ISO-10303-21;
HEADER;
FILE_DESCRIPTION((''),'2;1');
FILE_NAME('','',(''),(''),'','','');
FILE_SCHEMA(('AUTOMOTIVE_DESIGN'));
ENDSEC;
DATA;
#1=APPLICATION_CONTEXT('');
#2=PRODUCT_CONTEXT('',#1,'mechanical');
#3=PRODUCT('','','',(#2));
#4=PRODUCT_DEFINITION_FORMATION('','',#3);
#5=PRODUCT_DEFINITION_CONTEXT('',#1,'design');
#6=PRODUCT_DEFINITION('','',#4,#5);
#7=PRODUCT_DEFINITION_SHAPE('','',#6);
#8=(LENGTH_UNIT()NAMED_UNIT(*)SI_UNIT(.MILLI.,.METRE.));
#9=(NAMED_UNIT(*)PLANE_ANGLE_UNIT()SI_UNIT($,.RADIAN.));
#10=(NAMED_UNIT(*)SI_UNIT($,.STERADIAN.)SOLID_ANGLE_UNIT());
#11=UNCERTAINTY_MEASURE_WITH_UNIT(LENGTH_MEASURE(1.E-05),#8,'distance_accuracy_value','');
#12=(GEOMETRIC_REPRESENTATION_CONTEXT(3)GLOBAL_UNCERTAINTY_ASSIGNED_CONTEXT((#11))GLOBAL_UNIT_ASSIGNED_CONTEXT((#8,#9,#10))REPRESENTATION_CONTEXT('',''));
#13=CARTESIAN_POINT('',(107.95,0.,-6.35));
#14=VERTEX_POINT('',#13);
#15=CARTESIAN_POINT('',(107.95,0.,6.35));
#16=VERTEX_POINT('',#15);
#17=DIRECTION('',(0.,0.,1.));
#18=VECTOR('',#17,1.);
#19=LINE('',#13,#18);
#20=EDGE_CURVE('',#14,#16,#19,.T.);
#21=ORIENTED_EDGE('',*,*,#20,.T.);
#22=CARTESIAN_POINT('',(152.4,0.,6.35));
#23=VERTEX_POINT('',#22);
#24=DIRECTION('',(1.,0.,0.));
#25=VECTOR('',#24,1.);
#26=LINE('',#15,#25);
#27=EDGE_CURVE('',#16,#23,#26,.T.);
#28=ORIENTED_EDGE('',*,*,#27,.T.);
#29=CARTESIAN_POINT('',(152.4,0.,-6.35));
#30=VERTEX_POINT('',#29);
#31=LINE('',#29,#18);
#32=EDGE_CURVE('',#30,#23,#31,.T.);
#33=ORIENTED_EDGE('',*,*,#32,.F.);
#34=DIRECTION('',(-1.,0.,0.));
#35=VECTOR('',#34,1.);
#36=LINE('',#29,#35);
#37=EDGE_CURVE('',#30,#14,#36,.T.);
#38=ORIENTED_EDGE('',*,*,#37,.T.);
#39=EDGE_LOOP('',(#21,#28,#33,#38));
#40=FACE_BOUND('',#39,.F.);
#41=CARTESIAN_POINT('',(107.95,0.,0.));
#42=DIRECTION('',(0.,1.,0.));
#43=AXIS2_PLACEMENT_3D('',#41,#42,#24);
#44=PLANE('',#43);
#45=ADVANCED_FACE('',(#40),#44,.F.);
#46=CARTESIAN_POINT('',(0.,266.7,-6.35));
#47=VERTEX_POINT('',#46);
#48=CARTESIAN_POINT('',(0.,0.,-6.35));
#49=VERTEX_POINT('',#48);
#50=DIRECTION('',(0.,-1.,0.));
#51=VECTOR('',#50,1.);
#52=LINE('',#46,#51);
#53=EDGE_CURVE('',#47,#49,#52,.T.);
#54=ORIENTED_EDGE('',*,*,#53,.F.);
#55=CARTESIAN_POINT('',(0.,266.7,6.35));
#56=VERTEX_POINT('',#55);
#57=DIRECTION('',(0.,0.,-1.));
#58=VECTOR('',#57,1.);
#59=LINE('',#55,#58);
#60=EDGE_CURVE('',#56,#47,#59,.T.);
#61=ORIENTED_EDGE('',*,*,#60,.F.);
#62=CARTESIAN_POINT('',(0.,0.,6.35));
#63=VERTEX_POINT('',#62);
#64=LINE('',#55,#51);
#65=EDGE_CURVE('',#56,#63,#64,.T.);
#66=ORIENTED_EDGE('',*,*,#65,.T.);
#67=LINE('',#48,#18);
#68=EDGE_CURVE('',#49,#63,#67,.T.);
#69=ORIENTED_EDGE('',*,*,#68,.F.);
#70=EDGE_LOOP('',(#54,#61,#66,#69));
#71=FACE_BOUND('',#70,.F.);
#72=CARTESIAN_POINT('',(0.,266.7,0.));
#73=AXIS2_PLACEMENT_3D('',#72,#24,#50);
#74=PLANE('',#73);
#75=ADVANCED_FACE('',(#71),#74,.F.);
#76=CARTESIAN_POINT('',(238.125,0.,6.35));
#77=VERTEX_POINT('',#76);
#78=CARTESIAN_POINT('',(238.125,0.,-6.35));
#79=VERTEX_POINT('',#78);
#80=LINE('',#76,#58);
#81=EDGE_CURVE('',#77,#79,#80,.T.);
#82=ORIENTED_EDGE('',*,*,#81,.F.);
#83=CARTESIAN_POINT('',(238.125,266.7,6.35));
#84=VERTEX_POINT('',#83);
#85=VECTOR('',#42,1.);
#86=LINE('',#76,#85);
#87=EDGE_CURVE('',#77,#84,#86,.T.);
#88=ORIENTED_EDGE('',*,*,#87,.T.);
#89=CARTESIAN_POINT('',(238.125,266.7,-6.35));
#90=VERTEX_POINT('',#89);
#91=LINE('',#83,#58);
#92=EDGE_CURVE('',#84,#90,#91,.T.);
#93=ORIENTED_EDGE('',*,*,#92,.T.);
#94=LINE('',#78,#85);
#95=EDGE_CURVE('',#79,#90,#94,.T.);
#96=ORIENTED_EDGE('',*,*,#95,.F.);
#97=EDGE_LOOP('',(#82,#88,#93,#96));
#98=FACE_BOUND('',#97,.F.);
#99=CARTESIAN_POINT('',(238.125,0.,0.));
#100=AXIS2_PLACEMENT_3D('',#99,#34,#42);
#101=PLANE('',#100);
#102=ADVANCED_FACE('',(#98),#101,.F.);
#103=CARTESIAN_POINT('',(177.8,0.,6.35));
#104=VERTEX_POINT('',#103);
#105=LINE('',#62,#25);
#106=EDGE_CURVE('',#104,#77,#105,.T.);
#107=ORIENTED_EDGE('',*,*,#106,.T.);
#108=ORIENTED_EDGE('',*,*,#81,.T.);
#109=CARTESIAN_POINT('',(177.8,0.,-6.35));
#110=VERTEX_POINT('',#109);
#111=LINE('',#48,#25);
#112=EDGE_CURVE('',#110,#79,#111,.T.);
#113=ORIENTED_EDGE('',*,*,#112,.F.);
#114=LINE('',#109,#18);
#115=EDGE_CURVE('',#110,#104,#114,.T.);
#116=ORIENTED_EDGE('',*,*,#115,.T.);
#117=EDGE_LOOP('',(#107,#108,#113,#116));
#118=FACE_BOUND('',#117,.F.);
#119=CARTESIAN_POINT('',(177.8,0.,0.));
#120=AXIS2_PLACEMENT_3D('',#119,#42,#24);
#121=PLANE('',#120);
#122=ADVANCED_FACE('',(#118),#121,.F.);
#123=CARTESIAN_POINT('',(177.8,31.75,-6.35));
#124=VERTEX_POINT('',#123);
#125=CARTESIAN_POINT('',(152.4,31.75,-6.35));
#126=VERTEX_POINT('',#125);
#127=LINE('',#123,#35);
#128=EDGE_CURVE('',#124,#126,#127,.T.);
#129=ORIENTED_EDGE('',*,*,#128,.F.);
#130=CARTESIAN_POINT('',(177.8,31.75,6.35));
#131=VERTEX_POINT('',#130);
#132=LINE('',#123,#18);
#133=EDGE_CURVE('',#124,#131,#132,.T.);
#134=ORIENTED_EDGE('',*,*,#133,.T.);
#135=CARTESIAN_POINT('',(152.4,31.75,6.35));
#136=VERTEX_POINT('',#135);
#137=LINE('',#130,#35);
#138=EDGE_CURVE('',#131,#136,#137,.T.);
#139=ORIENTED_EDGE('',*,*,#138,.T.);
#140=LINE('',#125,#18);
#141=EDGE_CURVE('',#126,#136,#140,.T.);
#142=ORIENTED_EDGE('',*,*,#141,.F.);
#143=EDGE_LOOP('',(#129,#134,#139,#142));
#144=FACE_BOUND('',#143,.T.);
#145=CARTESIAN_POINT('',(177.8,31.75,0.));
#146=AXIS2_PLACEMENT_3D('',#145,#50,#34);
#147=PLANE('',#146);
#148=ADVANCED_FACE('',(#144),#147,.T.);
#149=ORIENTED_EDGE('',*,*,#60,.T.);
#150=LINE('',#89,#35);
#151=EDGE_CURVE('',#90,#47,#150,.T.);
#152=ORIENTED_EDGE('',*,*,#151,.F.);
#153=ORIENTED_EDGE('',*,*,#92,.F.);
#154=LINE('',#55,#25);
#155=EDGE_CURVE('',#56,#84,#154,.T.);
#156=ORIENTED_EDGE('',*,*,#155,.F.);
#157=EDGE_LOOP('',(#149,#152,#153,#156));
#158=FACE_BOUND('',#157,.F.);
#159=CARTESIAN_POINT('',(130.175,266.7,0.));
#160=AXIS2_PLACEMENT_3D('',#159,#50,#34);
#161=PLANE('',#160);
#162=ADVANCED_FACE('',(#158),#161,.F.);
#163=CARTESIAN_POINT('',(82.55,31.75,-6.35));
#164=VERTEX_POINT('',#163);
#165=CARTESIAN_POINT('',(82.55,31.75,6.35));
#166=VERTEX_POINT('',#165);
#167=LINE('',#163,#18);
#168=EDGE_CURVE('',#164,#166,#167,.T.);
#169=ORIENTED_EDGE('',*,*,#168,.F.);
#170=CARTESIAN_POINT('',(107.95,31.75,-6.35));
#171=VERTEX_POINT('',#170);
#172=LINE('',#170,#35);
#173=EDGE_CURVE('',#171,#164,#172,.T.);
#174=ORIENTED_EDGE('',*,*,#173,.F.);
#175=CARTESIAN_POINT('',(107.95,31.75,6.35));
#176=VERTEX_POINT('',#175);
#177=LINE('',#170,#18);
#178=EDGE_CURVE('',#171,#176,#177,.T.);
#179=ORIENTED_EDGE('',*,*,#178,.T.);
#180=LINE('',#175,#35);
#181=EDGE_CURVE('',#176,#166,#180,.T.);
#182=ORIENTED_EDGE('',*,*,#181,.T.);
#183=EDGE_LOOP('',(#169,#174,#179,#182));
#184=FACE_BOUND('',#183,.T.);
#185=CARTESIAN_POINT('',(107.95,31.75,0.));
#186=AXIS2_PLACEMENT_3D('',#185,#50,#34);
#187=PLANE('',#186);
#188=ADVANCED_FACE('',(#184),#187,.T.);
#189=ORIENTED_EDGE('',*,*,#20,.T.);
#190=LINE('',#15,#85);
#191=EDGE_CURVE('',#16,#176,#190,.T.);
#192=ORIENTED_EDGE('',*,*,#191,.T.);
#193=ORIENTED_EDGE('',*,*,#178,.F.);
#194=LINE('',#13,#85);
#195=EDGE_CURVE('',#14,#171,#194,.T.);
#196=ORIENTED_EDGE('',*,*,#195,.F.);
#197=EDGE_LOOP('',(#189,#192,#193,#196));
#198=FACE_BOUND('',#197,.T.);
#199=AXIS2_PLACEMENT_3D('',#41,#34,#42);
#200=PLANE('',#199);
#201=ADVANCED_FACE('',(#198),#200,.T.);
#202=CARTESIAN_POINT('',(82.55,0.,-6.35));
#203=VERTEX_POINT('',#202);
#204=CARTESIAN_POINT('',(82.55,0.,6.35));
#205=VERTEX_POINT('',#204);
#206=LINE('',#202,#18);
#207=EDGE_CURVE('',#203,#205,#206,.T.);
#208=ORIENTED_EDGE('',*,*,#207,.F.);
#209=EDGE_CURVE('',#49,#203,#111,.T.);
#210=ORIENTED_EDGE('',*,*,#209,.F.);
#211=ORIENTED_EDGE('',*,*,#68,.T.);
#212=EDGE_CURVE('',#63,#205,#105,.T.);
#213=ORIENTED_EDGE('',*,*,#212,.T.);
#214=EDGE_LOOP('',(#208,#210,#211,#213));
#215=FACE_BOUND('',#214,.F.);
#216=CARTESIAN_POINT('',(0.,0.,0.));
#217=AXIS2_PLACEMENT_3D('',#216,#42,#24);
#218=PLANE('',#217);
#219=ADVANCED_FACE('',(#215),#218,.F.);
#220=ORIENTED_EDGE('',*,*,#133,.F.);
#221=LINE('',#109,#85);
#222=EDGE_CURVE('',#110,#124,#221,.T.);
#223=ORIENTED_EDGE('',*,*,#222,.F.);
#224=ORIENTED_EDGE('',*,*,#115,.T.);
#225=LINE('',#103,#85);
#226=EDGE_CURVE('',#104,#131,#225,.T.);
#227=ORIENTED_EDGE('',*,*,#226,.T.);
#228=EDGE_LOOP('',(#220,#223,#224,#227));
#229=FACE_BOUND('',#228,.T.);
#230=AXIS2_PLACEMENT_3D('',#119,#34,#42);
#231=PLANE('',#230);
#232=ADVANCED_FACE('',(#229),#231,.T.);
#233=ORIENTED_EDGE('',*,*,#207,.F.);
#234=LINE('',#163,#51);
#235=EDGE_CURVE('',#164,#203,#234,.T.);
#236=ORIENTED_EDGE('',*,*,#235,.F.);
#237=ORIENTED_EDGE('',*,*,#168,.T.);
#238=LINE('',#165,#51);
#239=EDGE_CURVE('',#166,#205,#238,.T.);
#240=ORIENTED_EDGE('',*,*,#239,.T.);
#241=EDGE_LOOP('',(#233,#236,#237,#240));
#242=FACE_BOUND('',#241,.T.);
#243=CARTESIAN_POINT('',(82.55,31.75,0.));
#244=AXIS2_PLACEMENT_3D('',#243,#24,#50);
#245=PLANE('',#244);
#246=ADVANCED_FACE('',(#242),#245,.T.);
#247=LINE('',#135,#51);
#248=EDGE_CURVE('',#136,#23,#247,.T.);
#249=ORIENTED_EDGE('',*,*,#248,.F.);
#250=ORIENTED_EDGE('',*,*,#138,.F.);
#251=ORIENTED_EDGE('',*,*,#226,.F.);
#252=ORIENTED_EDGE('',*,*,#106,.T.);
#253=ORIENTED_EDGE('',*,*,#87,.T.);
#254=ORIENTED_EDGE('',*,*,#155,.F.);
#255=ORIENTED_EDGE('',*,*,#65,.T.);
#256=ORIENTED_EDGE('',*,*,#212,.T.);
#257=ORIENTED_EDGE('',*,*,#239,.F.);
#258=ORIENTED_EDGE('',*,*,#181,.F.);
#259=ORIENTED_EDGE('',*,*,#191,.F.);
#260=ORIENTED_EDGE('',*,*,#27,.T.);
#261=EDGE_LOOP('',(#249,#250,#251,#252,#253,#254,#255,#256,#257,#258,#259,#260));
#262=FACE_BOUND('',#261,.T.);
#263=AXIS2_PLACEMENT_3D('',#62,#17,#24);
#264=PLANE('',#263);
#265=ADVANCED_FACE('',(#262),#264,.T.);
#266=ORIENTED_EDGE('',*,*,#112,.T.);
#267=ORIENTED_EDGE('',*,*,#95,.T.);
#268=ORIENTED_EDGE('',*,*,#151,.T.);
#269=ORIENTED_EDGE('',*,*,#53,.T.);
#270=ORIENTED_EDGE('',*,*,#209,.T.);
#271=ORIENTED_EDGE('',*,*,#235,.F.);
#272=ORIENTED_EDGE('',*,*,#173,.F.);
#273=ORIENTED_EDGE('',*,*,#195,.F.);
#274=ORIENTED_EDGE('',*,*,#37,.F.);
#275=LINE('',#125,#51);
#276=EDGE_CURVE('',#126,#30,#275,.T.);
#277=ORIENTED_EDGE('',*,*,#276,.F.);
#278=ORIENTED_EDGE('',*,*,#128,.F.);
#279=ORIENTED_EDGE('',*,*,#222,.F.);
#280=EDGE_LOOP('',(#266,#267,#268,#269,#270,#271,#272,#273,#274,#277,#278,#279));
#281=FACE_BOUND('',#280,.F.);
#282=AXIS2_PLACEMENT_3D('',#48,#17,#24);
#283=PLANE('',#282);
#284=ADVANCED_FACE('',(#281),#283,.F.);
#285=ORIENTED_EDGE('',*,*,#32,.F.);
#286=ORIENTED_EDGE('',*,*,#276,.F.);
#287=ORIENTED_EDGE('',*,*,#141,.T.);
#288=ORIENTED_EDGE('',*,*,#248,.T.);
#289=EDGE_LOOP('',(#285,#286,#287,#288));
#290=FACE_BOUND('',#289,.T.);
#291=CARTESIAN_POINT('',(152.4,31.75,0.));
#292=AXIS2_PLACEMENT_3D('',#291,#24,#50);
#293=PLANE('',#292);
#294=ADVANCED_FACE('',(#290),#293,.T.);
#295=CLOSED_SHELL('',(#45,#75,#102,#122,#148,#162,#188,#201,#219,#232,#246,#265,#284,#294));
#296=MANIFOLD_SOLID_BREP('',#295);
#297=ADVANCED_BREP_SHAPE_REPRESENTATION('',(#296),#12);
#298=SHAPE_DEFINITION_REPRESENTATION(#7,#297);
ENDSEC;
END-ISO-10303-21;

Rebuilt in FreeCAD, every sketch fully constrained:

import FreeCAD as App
import Part
import Sketcher

V = App.Vector
Q = App.Units.Quantity


def add_polygon(sketch, points):
    """Adds a closed chain of lines whose ends are joined by coincident constraints."""
    first, n = sketch.GeometryCount, len(points)
    for a, b in zip(points, points[1:] + points[:1]):
        sketch.addGeometry(Part.LineSegment(App.Vector(*a, 0), App.Vector(*b, 0)), False)
    for i in range(n):
        sketch.addConstraint(Sketcher.Constraint("Coincident", first + i, 2, first + (i + 1) % n, 1))

doc = App.newDocument("Part")
body = doc.addObject("PartDesign::Body", "Body")

# Sketch on XY plane
sketch1 = body.newObject("Sketcher::SketchObject", "Sketch")
sketch1.AttachmentSupport = (doc.getObject("XY_Plane"), [""])
sketch1.MapMode = "FlatFace"
add_polygon(sketch1, [(0, 267), (0, 0), (83, 0), (83, 32), (108, 32), (108, 0), (152, 0), (152, 32), (178, 32), (178, 0), (238, 0), (238, 267)])  # lines 0-11
sketch1.addConstraint(Sketcher.Constraint("Vertical", 0))
sketch1.addConstraint(Sketcher.Constraint("Horizontal", 1))
sketch1.addConstraint(Sketcher.Constraint("Vertical", 2))
sketch1.addConstraint(Sketcher.Constraint("Horizontal", 3))
sketch1.addConstraint(Sketcher.Constraint("Vertical", 4))
sketch1.addConstraint(Sketcher.Constraint("Horizontal", 5))
sketch1.addConstraint(Sketcher.Constraint("Vertical", 6))
sketch1.addConstraint(Sketcher.Constraint("Horizontal", 7))
sketch1.addConstraint(Sketcher.Constraint("Vertical", 8))
sketch1.addConstraint(Sketcher.Constraint("Horizontal", 9))
sketch1.addConstraint(Sketcher.Constraint("Vertical", 10))
sketch1.addConstraint(Sketcher.Constraint("Horizontal", 11))
sketch1.addConstraint(Sketcher.Constraint("Coincident", 0, 2, -1, 1))
sketch1.addConstraint(Sketcher.Constraint("PointOnObject", 4, 2, -1))
sketch1.addConstraint(Sketcher.Constraint("PointOnObject", 8, 2, -1))
sketch1.addConstraint(Sketcher.Constraint("Horizontal", 3, 2, 6, 2))
sketch1.addConstraint(Sketcher.Constraint("Equal", 3, 7))
sketch1.addConstraint(Sketcher.Constraint("DistanceX", 3, 1, 3, 2, Q("1 in")))
sketch1.addConstraint(Sketcher.Constraint("DistanceY", 0, 2, 0, 1, Q("10.5 in")))
sketch1.addConstraint(Sketcher.Constraint("DistanceY", 2, 1, 2, 2, Q("1.25 in")))
sketch1.addConstraint(Sketcher.Constraint("DistanceX", 11, 2, 11, 1, Q("9.375 in")))
sketch1.addConstraint(Sketcher.Constraint("DistanceX", -1, 1, 5, 2, Q("6 in")))
sketch1.addConstraint(Sketcher.Constraint("DistanceX", 4, 2, 9, 2, Q("5.125 in")))
pad1 = body.newObject("PartDesign::Pad", "Pad")
pad1.Profile = sketch1
pad1.Length = Q("0.5 in")
pad1.Midplane = True

doc.recompute()
